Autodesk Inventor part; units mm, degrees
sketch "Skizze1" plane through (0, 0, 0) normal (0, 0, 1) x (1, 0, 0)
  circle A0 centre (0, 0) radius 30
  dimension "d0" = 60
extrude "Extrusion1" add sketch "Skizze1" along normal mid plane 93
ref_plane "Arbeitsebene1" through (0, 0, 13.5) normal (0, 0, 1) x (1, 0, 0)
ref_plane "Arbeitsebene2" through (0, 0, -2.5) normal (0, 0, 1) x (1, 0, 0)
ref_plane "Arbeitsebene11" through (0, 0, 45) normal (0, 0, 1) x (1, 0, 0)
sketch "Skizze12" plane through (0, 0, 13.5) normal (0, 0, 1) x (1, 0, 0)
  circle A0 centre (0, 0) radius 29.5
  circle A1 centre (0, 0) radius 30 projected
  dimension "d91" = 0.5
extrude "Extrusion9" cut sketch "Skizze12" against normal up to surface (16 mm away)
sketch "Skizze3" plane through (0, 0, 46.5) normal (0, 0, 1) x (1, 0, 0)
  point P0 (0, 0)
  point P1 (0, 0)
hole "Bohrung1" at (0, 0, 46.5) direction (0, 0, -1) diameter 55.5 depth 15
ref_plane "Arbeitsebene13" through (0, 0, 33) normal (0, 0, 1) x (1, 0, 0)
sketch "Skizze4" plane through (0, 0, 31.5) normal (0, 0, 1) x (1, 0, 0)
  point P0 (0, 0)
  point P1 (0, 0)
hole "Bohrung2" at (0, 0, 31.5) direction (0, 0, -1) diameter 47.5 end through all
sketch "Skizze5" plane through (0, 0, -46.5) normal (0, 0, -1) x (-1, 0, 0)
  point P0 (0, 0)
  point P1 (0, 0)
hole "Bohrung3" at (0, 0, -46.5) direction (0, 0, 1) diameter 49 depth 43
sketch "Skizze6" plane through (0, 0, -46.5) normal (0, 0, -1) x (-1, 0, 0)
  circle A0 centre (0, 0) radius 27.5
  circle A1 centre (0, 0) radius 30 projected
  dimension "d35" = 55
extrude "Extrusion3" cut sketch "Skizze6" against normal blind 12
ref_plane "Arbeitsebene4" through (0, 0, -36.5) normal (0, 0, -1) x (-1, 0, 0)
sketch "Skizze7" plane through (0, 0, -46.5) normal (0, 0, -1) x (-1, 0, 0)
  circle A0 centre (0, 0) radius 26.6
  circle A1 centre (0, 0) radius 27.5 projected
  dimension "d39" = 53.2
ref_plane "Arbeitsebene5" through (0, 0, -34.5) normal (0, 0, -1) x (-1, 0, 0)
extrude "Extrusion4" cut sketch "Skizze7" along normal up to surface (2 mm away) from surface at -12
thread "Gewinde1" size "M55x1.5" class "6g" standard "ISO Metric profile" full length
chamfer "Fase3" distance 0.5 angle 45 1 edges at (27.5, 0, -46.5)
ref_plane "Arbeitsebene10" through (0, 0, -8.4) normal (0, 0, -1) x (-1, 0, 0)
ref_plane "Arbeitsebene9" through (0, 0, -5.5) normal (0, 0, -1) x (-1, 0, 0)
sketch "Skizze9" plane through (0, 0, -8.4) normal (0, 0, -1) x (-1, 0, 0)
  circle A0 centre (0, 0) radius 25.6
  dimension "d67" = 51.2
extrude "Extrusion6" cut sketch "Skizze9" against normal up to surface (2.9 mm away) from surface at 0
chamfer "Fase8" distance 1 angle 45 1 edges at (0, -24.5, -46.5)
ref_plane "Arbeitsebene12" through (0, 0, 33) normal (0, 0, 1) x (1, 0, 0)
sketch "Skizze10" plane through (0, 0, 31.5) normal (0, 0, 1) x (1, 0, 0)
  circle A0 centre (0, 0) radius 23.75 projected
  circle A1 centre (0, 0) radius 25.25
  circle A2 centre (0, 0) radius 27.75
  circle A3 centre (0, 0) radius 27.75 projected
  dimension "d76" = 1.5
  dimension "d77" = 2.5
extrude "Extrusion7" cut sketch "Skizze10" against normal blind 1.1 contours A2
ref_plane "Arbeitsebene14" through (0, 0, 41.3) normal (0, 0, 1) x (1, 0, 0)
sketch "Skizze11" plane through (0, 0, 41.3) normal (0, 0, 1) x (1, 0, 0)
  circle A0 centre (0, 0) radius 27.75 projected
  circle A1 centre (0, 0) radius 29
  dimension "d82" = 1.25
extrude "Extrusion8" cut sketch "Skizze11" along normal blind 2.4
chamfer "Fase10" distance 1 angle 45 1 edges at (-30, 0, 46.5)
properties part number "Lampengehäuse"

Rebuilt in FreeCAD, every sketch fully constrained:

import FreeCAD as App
import Part
import Sketcher
from FreeCAD import Vector
Q = App.Units.Quantity


def edges_at(feature, points):
    """Names of the edges that pass closest to the given points."""
    edges = feature.Shape.Edges
    near = lambda p: min(range(len(edges)), key=lambda i: edges[i].distToShape(Part.Vertex(*p))[0])
    return sorted({f"Edge{near(p) + 1}" for p in points})

doc = App.newDocument("Part")
params = doc.addObject("Spreadsheet::Sheet", "Params")
for row, (alias, value) in enumerate([
    ("sketch1_diameter", "60 mm"),
    ("pad1_length", "93 mm"),
    ("sketch2_diameter", "60 mm"),
    ("sketch2_diameter2", "59 mm"),
    ("pocket1_length", "16 mm"),
    ("sketch3_diameter", "55.5 mm"),
    ("hole_diameter", "55.5 mm"),
    ("hole_depth", "15 mm"),
    ("sketch4_diameter", "47.5 mm"),
    ("hole2_diameter", "47.5 mm"),
    ("sketch5_diameter", "49 mm"),
    ("hole3_diameter", "49 mm"),
    ("hole3_depth", "43 mm"),
    ("sketch6_diameter", "55 mm"),
    ("sketch6_diameter2", "60 mm"),
    ("pocket2_length", "12 mm"),
    ("sketch7_diameter", "53.2 mm"),
    ("sketch7_diameter2", "55 mm"),
    ("pocket3_length", "2 mm"),
    ("chamfer_size", "0.5 mm"),
    ("sketch8_diameter", "51.2 mm"),
    ("pocket4_length", "2.9 mm"),
    ("chamfer2_size", "1 mm"),
    ("sketch9_diameter", "55.5 mm"),
    ("sketch9_diameter2", "50.5 mm"),
    ("pocket5_length", "1.1 mm"),
    ("sketch10_diameter", "58 mm"),
    ("sketch10_diameter2", "55.5 mm"),
    ("pocket6_length", "2.4 mm"),
    ("chamfer3_size", "1 mm"),
], start=1):
    params.set(f"A{row}", alias)
    params.set(f"B{row}", "=" + value)
    params.setAlias(f"B{row}", alias)

body = doc.addObject("PartDesign::Body", "Body")

sketch1 = body.newObject("Sketcher::SketchObject", "Sketch")
sketch1.AttachmentSupport = (doc.getObject("XY_Plane"), [""])
sketch1.MapMode = "FlatFace"
sketch1.addGeometry(Part.Circle(Vector(0, 0, 0), Vector(0, 0, 1), 30), False)
sketch1.addConstraint([
    Sketcher.Constraint("Coincident", 0, 3, -1, 1),
    Sketcher.Constraint("Diameter", 0, Q("60 mm")),
])
sketch1.setExpression("Constraints[1]", "Params.sketch1_diameter")
pad1 = body.newObject("PartDesign::Pad", "Pad")
pad1.Profile = sketch1
pad1.setExpression("Length", "Params.pad1_length")
pad1.Midplane = True

sketch2 = body.newObject("Sketcher::SketchObject", "Sketch001")
sketch2.AttachmentSupport = (doc.getObject("XY_Plane"), [""])
sketch2.MapMode = "FlatFace"
sketch2.AttachmentOffset = App.Placement(Vector(0, 0, 13.5), App.Rotation())
sketch2.addGeometry([
    Part.Circle(Vector(0, 0, 0), Vector(0, 0, 1), 30),
    Part.Circle(Vector(0, 0, 0), Vector(0, 0, 1), 30),
], False)
sketch2.addConstraint([
    Sketcher.Constraint("Coincident", 0, 3, -1, 1),
    Sketcher.Constraint("Coincident", 1, 3, -1, 1),
    Sketcher.Constraint("Diameter", 0, Q("60 mm")),
    Sketcher.Constraint("Diameter", 1, Q("59 mm")),
])
sketch2.setExpression("Constraints[2]", "Params.sketch2_diameter")
sketch2.setExpression("Constraints[3]", "Params.sketch2_diameter2")
pocket1 = body.newObject("PartDesign::Pocket", "Pocket")
pocket1.Profile = sketch2
pocket1.setExpression("Length", "Params.pocket1_length")

sketch3 = body.newObject("Sketcher::SketchObject", "Sketch002")
sketch3.AttachmentSupport = (doc.getObject("XY_Plane"), [""])
sketch3.MapMode = "FlatFace"
sketch3.AttachmentOffset = App.Placement(Vector(0, 0, 46.5), App.Rotation())
sketch3.addGeometry(Part.Circle(Vector(0, 0, 0), Vector(0, 0, 1), 28), False)
sketch3.addConstraint([
    Sketcher.Constraint("Coincident", 0, 3, -1, 1),
    Sketcher.Constraint("Diameter", 0, Q("55.5 mm")),
])
sketch3.setExpression("Constraints[1]", "Params.sketch3_diameter")
doc.recompute()
hole = body.newObject("PartDesign::Hole", "Hole")
hole.Profile = sketch3
hole.ThreadType = "None"
hole.setExpression("Diameter", "Params.hole_diameter")
hole.DepthType = "Dimension"
hole.setExpression("Depth", "Params.hole_depth")
hole.DrillPoint = "Flat"

sketch4 = body.newObject("Sketcher::SketchObject", "Sketch003")
sketch4.AttachmentSupport = (doc.getObject("XY_Plane"), [""])
sketch4.MapMode = "FlatFace"
sketch4.AttachmentOffset = App.Placement(Vector(0, 0, 31.5), App.Rotation())
sketch4.addGeometry(Part.Circle(Vector(0, 0, 0), Vector(0, 0, 1), 24), False)
sketch4.addConstraint([
    Sketcher.Constraint("Coincident", 0, 3, -1, 1),
    Sketcher.Constraint("Diameter", 0, Q("47.5 mm")),
])
sketch4.setExpression("Constraints[1]", "Params.sketch4_diameter")
doc.recompute()
hole2 = body.newObject("PartDesign::Hole", "Hole001")
hole2.Profile = sketch4
hole2.ThreadType = "None"
hole2.setExpression("Diameter", "Params.hole2_diameter")
hole2.DepthType = "ThroughAll"

sketch5 = body.newObject("Sketcher::SketchObject", "Sketch004")
sketch5.AttachmentSupport = (doc.getObject("XY_Plane"), [""])
sketch5.MapMode = "FlatFace"
sketch5.AttachmentOffset = App.Placement(Vector(0, 0, -46.5), App.Rotation())
sketch5.addGeometry(Part.Circle(Vector(0, 0, 0), Vector(0, 0, 1), 24), False)
sketch5.addConstraint([
    Sketcher.Constraint("Coincident", 0, 3, -1, 1),
    Sketcher.Constraint("Diameter", 0, Q("49 mm")),
])
sketch5.setExpression("Constraints[1]", "Params.sketch5_diameter")
doc.recompute()
hole3 = body.newObject("PartDesign::Hole", "Hole002")
hole3.Profile = sketch5
hole3.ThreadType = "None"
hole3.setExpression("Diameter", "Params.hole3_diameter")
hole3.DepthType = "Dimension"
hole3.setExpression("Depth", "Params.hole3_depth")
hole3.DrillPoint = "Flat"
hole3.Reversed = True

sketch6 = body.newObject("Sketcher::SketchObject", "Sketch005")
sketch6.AttachmentSupport = (doc.getObject("XY_Plane"), [""])
sketch6.MapMode = "FlatFace"
sketch6.AttachmentOffset = App.Placement(Vector(0, 0, -46.5), App.Rotation())
sketch6.addGeometry([
    Part.Circle(Vector(0, 0, 0), Vector(0, 0, 1), 30),
    Part.Circle(Vector(0, 0, 0), Vector(0, 0, 1), 28),
], False)
sketch6.addConstraint([
    Sketcher.Constraint("Coincident", 0, 3, -1, 1),
    Sketcher.Constraint("Coincident", 1, 3, -1, 1),
    Sketcher.Constraint("Diameter", 1, Q("55 mm")),
    Sketcher.Constraint("Diameter", 0, Q("60 mm")),
])
sketch6.setExpression("Constraints[2]", "Params.sketch6_diameter")
sketch6.setExpression("Constraints[3]", "Params.sketch6_diameter2")
pocket2 = body.newObject("PartDesign::Pocket", "Pocket001")
pocket2.Profile = sketch6
pocket2.setExpression("Length", "Params.pocket2_length")
pocket2.Reversed = True

sketch7 = body.newObject("Sketcher::SketchObject", "Sketch006")
sketch7.AttachmentSupport = (doc.getObject("XY_Plane"), [""])
sketch7.MapMode = "FlatFace"
sketch7.AttachmentOffset = App.Placement(Vector(0, 0, -34.5), App.Rotation())
sketch7.addGeometry([
    Part.Circle(Vector(0, 0, 0), Vector(0, 0, 1), 28),
    Part.Circle(Vector(0, 0, 0), Vector(0, 0, 1), 27),
], False)
sketch7.addConstraint([
    Sketcher.Constraint("Coincident", 0, 3, -1, 1),
    Sketcher.Constraint("Coincident", 1, 3, -1, 1),
    Sketcher.Constraint("Diameter", 1, Q("53.2 mm")),
    Sketcher.Constraint("Diameter", 0, Q("55 mm")),
])
sketch7.setExpression("Constraints[2]", "Params.sketch7_diameter")
sketch7.setExpression("Constraints[3]", "Params.sketch7_diameter2")
pocket3 = body.newObject("PartDesign::Pocket", "Pocket002")
pocket3.Profile = sketch7
pocket3.setExpression("Length", "Params.pocket3_length")
doc.recompute()

chamfer = body.newObject("PartDesign::Chamfer", "Chamfer")
chamfer.Base = (pocket3, edges_at(pocket3, [(27.5, 0, -46.5)]))
chamfer.setExpression("Size", "Params.chamfer_size")

sketch8 = body.newObject("Sketcher::SketchObject", "Sketch007")
sketch8.AttachmentSupport = (doc.getObject("XY_Plane"), [""])
sketch8.MapMode = "FlatFace"
sketch8.AttachmentOffset = App.Placement(Vector(0, 0, -8.4), App.Rotation())
sketch8.addGeometry(Part.Circle(Vector(0, 0, 0), Vector(0, 0, 1), 26), False)
sketch8.addConstraint([
    Sketcher.Constraint("Coincident", 0, 3, -1, 1),
    Sketcher.Constraint("Diameter", 0, Q("51.2 mm")),
])
sketch8.setExpression("Constraints[1]", "Params.sketch8_diameter")
pocket4 = body.newObject("PartDesign::Pocket", "Pocket003")
pocket4.Profile = sketch8
pocket4.setExpression("Length", "Params.pocket4_length")
pocket4.Reversed = True
doc.recompute()

chamfer2 = body.newObject("PartDesign::Chamfer", "Chamfer001")
chamfer2.Base = (pocket4, edges_at(pocket4, [(0, -24.5, -46.5)]))
chamfer2.setExpression("Size", "Params.chamfer2_size")

sketch9 = body.newObject("Sketcher::SketchObject", "Sketch008")
sketch9.AttachmentSupport = (doc.getObject("XY_Plane"), [""])
sketch9.MapMode = "FlatFace"
sketch9.AttachmentOffset = App.Placement(Vector(0, 0, 31.5), App.Rotation())
sketch9.addGeometry([
    Part.Circle(Vector(0, 0, 0), Vector(0, 0, 1), 28),
    Part.Circle(Vector(0, 0, 0), Vector(0, 0, 1), 25),
], False)
sketch9.addConstraint([
    Sketcher.Constraint("Coincident", 0, 3, -1, 1),
    Sketcher.Constraint("Coincident", 1, 3, -1, 1),
    Sketcher.Constraint("Diameter", 0, Q("55.5 mm")),
    Sketcher.Constraint("Diameter", 1, Q("50.5 mm")),
])
sketch9.setExpression("Constraints[2]", "Params.sketch9_diameter")
sketch9.setExpression("Constraints[3]", "Params.sketch9_diameter2")
pocket5 = body.newObject("PartDesign::Pocket", "Pocket004")
pocket5.Profile = sketch9
pocket5.setExpression("Length", "Params.pocket5_length")

sketch10 = body.newObject("Sketcher::SketchObject", "Sketch009")
sketch10.AttachmentSupport = (doc.getObject("XY_Plane"), [""])
sketch10.MapMode = "FlatFace"
sketch10.AttachmentOffset = App.Placement(Vector(0, 0, 41.3), App.Rotation())
sketch10.addGeometry([
    Part.Circle(Vector(0, 0, 0), Vector(0, 0, 1), 29),
    Part.Circle(Vector(0, 0, 0), Vector(0, 0, 1), 28),
], False)
sketch10.addConstraint([
    Sketcher.Constraint("Coincident", 0, 3, -1, 1),
    Sketcher.Constraint("Coincident", 1, 3, -1, 1),
    Sketcher.Constraint("Diameter", 0, Q("58 mm")),
    Sketcher.Constraint("Diameter", 1, Q("55.5 mm")),
])
sketch10.setExpression("Constraints[2]", "Params.sketch10_diameter")
sketch10.setExpression("Constraints[3]", "Params.sketch10_diameter2")
pocket6 = body.newObject("PartDesign::Pocket", "Pocket005")
pocket6.Profile = sketch10
pocket6.setExpression("Length", "Params.pocket6_length")
pocket6.Reversed = True
doc.recompute()

chamfer3 = body.newObject("PartDesign::Chamfer", "Chamfer002")
chamfer3.Base = (pocket6, edges_at(pocket6, [(-30, 0, 46.5)]))
chamfer3.setExpression("Size", "Params.chamfer3_size")

doc.recompute()
